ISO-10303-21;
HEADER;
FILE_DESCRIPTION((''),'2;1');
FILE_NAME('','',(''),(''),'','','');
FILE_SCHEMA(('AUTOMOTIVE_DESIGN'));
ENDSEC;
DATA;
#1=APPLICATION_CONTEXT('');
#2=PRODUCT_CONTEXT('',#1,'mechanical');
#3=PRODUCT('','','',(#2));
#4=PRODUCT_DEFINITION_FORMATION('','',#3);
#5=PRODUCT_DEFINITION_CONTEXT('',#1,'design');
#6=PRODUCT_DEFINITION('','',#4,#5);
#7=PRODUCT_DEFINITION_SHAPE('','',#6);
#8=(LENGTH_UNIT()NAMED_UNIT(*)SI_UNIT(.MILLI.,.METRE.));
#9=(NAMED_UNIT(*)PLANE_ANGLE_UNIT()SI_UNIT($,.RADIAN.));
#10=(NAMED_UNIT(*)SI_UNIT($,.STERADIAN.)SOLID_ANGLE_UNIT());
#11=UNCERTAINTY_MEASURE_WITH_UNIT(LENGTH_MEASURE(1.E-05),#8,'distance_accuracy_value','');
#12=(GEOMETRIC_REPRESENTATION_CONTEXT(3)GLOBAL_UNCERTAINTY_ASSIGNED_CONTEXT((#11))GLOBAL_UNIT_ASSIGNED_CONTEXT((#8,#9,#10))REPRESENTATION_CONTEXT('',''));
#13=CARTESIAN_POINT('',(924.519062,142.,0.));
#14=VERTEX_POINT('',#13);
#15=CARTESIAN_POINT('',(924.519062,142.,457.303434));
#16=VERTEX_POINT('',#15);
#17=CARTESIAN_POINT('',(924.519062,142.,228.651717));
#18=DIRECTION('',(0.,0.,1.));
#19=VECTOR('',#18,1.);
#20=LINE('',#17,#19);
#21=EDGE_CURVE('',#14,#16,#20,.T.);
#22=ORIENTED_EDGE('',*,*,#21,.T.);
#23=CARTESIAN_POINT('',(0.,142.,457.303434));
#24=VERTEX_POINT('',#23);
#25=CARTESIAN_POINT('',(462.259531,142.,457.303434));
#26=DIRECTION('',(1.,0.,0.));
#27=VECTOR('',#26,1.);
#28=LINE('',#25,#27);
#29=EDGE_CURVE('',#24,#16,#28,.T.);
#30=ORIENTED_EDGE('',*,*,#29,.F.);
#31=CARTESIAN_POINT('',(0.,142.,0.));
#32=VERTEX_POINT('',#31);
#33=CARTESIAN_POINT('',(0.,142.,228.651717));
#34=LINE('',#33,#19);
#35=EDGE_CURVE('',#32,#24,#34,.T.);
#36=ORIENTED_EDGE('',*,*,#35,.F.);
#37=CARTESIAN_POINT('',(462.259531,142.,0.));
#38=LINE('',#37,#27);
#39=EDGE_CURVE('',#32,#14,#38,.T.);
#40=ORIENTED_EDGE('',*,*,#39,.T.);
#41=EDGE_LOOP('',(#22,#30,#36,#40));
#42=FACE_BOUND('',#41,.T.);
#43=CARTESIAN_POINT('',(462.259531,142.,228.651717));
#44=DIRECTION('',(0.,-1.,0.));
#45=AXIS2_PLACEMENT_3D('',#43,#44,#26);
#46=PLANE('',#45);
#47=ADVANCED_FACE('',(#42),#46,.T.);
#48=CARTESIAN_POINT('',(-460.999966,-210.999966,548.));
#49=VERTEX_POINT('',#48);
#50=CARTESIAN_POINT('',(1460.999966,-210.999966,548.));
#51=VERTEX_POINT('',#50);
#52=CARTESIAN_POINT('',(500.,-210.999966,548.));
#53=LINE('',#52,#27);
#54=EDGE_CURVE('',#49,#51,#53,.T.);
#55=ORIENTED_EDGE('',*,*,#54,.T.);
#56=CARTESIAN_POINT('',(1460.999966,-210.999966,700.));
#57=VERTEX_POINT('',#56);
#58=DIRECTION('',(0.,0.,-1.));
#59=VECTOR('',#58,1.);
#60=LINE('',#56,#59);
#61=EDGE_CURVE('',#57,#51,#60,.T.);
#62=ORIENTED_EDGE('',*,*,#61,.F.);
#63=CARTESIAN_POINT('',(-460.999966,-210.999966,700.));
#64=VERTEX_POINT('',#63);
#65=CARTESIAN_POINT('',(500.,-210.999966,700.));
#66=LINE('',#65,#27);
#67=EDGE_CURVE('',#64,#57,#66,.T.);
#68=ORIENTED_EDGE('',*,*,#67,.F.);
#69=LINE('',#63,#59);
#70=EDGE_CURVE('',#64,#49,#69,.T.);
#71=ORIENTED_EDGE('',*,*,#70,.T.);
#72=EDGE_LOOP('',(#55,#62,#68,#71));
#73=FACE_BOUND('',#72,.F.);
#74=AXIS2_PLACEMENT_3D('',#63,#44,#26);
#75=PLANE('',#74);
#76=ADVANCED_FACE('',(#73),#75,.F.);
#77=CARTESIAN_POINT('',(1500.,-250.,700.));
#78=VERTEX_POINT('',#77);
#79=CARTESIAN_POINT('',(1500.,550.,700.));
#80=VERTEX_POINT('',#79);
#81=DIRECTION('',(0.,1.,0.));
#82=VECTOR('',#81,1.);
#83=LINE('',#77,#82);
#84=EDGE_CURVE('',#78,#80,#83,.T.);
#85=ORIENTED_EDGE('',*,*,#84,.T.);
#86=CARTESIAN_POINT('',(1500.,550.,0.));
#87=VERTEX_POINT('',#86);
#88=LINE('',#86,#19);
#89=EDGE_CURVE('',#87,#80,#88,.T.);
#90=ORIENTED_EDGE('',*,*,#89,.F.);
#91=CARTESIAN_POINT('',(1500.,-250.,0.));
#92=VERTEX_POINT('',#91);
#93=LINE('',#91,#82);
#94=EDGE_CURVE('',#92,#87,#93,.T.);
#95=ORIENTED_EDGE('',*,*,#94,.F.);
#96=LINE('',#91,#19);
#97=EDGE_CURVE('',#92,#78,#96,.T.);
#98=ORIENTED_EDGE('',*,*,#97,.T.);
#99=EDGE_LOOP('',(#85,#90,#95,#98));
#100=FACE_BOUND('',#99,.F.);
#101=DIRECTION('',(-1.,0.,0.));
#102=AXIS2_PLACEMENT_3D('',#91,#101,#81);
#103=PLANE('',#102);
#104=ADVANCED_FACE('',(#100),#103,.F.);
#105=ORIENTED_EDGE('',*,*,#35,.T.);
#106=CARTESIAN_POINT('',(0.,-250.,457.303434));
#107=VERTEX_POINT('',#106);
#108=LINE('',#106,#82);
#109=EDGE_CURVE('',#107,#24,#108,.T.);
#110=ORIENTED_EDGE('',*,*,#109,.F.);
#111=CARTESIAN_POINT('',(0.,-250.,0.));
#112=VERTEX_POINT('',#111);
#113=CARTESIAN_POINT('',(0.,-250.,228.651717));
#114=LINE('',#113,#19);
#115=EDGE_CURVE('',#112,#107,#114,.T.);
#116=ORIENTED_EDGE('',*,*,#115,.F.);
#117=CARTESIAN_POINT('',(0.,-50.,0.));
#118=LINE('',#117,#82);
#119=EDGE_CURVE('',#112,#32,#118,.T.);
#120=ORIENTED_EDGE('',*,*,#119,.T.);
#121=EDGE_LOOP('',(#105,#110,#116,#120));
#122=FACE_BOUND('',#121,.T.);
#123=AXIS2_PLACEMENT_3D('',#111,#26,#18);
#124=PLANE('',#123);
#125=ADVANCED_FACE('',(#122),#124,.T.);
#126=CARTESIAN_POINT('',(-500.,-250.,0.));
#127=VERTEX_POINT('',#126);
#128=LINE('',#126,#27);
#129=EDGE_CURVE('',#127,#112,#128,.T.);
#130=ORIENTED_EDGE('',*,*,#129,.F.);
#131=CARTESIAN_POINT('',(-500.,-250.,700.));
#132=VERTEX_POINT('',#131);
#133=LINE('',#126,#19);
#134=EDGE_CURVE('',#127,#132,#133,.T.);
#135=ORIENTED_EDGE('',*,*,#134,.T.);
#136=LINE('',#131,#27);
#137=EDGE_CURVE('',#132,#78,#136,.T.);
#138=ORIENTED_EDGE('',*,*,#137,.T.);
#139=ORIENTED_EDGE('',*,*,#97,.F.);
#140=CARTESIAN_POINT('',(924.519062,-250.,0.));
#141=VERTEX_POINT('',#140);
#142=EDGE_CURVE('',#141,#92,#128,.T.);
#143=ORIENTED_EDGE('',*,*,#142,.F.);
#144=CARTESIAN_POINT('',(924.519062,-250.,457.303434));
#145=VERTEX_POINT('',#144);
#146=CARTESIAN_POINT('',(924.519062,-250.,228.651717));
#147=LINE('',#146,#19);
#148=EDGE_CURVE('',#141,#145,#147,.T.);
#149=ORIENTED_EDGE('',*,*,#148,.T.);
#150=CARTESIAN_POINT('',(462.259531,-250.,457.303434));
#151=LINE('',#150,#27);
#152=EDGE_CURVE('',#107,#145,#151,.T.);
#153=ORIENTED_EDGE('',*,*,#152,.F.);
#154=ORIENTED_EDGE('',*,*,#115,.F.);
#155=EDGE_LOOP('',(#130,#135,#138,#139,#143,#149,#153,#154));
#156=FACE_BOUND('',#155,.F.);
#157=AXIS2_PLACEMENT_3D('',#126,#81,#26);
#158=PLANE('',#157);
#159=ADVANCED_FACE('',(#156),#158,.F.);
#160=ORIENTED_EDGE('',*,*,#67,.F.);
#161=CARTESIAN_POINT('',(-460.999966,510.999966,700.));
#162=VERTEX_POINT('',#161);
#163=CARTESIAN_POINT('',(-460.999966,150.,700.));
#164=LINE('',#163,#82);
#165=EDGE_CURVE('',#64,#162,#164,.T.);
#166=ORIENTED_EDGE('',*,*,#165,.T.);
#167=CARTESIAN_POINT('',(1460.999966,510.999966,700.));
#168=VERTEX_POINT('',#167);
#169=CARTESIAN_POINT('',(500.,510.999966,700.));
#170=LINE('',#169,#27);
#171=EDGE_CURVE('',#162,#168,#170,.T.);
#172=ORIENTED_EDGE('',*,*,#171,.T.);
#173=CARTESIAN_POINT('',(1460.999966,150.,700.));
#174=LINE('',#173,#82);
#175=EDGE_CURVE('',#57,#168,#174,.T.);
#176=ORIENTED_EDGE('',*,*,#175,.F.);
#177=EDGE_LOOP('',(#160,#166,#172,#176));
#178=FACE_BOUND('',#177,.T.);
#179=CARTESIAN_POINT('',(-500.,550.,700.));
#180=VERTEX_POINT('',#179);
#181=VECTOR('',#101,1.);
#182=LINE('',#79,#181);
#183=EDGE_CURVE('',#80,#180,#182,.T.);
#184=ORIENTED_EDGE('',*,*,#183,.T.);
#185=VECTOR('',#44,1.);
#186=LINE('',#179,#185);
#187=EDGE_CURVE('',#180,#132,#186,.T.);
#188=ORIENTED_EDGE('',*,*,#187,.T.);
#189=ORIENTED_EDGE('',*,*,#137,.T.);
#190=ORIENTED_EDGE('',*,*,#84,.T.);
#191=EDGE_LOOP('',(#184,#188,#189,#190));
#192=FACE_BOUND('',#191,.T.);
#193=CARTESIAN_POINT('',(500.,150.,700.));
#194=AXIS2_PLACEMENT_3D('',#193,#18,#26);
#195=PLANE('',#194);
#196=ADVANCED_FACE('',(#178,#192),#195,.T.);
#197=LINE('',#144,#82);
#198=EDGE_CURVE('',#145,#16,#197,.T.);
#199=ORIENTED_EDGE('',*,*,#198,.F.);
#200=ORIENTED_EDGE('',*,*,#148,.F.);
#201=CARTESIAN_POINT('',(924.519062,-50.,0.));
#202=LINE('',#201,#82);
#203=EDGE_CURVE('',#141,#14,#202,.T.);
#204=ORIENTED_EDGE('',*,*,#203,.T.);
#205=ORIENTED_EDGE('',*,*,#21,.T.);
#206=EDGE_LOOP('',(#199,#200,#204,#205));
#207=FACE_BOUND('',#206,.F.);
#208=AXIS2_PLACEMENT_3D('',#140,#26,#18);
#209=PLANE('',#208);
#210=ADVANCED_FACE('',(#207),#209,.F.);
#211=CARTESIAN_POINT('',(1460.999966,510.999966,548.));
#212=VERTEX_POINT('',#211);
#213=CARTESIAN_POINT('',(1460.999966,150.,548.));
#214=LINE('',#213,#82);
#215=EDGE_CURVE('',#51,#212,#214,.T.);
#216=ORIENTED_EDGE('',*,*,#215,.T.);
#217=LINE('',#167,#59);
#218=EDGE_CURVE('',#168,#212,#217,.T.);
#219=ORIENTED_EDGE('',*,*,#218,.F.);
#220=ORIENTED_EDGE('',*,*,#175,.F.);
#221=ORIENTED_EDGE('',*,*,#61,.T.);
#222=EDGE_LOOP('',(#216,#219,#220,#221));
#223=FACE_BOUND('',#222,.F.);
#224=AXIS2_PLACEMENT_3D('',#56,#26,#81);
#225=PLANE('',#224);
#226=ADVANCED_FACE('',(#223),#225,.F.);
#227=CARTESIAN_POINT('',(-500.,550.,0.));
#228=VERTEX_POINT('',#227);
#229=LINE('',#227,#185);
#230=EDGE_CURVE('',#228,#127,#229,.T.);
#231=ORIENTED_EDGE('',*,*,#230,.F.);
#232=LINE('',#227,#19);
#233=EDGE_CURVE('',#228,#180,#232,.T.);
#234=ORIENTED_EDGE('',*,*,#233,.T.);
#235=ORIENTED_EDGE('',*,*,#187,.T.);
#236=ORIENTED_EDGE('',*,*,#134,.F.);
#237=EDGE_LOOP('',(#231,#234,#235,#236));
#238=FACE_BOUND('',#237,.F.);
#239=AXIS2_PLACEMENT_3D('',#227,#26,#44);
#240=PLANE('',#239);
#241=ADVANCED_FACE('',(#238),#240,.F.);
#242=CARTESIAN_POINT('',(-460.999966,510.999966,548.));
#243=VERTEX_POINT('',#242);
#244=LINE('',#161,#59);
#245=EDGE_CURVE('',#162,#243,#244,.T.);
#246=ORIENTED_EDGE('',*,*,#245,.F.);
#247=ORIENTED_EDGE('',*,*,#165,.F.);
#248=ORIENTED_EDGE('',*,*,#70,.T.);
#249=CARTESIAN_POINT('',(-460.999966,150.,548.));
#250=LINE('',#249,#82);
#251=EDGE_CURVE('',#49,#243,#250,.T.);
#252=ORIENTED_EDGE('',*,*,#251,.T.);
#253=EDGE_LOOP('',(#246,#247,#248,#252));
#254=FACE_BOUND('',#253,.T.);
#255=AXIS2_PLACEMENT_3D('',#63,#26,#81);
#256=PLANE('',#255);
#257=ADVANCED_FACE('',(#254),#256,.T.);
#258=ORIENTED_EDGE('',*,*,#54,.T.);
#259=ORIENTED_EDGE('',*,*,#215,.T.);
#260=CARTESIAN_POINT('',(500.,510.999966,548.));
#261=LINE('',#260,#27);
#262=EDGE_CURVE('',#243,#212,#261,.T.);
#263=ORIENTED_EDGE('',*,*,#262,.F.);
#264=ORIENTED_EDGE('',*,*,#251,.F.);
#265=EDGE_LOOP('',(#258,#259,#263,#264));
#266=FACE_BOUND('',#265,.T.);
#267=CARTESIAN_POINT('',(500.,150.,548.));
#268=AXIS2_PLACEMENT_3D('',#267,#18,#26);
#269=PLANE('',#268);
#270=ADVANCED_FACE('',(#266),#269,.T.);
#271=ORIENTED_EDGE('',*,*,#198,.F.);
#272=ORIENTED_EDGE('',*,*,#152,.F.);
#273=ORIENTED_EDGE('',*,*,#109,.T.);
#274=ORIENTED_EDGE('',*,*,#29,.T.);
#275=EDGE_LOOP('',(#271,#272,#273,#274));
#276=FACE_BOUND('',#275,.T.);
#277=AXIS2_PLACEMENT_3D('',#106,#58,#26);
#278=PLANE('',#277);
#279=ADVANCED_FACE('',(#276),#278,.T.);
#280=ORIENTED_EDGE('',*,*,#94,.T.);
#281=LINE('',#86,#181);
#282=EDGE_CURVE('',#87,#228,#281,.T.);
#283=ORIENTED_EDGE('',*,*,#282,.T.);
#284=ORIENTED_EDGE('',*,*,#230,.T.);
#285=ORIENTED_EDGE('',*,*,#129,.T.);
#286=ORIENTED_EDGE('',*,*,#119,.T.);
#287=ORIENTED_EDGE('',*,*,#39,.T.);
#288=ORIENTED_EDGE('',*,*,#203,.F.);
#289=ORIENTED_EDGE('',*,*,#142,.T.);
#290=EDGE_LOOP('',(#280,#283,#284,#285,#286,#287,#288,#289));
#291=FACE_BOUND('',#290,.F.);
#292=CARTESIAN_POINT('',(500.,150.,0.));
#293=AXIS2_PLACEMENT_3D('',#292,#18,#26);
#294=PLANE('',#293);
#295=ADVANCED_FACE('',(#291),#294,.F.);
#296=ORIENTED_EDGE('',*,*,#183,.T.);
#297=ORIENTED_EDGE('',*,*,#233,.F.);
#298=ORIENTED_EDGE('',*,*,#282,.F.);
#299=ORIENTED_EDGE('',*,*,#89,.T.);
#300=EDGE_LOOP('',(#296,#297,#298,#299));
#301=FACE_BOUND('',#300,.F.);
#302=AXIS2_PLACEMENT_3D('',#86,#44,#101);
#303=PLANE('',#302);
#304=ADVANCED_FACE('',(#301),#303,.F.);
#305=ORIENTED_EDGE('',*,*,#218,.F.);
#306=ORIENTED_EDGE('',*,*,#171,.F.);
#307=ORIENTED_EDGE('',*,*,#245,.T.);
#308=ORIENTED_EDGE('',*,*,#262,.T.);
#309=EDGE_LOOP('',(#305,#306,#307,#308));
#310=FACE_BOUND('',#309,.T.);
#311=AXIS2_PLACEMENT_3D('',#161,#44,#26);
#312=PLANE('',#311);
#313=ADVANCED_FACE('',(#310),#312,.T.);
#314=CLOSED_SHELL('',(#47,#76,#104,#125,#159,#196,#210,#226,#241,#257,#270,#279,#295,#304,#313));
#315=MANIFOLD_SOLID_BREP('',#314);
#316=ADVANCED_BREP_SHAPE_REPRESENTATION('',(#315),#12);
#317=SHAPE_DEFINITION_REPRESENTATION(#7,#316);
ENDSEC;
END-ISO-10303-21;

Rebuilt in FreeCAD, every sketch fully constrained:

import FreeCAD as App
import Part
import Sketcher
Q = App.Units.Quantity

doc = App.newDocument("Part")
body = doc.addObject("PartDesign::Body", "Body")

sketch1 = doc.addObject("Sketcher::SketchObject", "Sketch")
body.addObject(sketch1)
sketch1.AttachmentSupport = (doc.XY_Plane, [""])
sketch1.MapMode = "FlatFace"
sketch1.addGeometry(Part.LineSegment(App.Vector(-500, -250, 0), App.Vector(1500, -250, 0)), False)
sketch1.addGeometry(Part.LineSegment(App.Vector(1500, -250, 0), App.Vector(1500, 550, 0)), False)
sketch1.addGeometry(Part.LineSegment(App.Vector(1500, 550, 0), App.Vector(-500, 550, 0)), False)
sketch1.addGeometry(Part.LineSegment(App.Vector(-500, 550, 0), App.Vector(-500, -250, 0)), False)
sketch1.addConstraint(Sketcher.Constraint("Coincident", 0, 2, 1, 1))
sketch1.addConstraint(Sketcher.Constraint("Coincident", 1, 2, 2, 1))
sketch1.addConstraint(Sketcher.Constraint("Coincident", 2, 2, 3, 1))
sketch1.addConstraint(Sketcher.Constraint("Coincident", 3, 2, 0, 1))
sketch1.addConstraint(Sketcher.Constraint("Horizontal", 0))
sketch1.addConstraint(Sketcher.Constraint("Vertical", 1))
sketch1.addConstraint(Sketcher.Constraint("Horizontal", 2))
sketch1.addConstraint(Sketcher.Constraint("Vertical", 3))
sketch1.addConstraint(Sketcher.Constraint("DistanceX", 0, 1, 0, 2, Q("2000 mm")))
sketch1.addConstraint(Sketcher.Constraint("DistanceY", 1, 1, 1, 2, Q("800 mm")))
sketch1.addConstraint(Sketcher.Constraint("DistanceX", -1, 1, 0, 2, Q("1500 mm")))
sketch1.addConstraint(Sketcher.Constraint("DistanceY", 0, 2, -1, 1, Q("250 mm")))
pad1 = doc.addObject("PartDesign::Pad", "Pad")
body.addObject(pad1)
pad1.Profile = sketch1
pad1.Length = 700

sketch2 = doc.addObject("Sketcher::SketchObject", "Sketch001")
body.addObject(sketch2)
sketch2.AttachmentSupport = (doc.XZ_Plane, [""])
sketch2.MapMode = "FlatFace"
sketch2.AttachmentOffset = App.Placement(App.Vector(0, 0, 250), App.Rotation())
sketch2.addGeometry(Part.LineSegment(App.Vector(0, 457, 0), App.Vector(0, 0, 0)), False)
sketch2.addGeometry(Part.LineSegment(App.Vector(0, 0, 0), App.Vector(925, 0, 0)), False)
sketch2.addGeometry(Part.LineSegment(App.Vector(925, 0, 0), App.Vector(925, 457, 0)), False)
sketch2.addGeometry(Part.LineSegment(App.Vector(925, 457, 0), App.Vector(0, 457, 0)), False)
sketch2.addConstraint(Sketcher.Constraint("Coincident", 0, 2, 1, 1))
sketch2.addConstraint(Sketcher.Constraint("Coincident", 1, 2, 2, 1))
sketch2.addConstraint(Sketcher.Constraint("Coincident", 2, 2, 3, 1))
sketch2.addConstraint(Sketcher.Constraint("Coincident", 3, 2, 0, 1))
sketch2.addConstraint(Sketcher.Constraint("Vertical", 0))
sketch2.addConstraint(Sketcher.Constraint("Horizontal", 1))
sketch2.addConstraint(Sketcher.Constraint("Vertical", 2))
sketch2.addConstraint(Sketcher.Constraint("Horizontal", 3))
sketch2.addConstraint(Sketcher.Constraint("Coincident", 0, 2, -1, 1))
sketch2.addConstraint(Sketcher.Constraint("DistanceX", 1, 1, 1, 2, Q("924.519062 mm")))
sketch2.addConstraint(Sketcher.Constraint("DistanceY", 0, 2, 0, 1, Q("457.303435 mm")))
pocket1 = doc.addObject("PartDesign::Pocket", "Pocket")
body.addObject(pocket1)
pocket1.Profile = sketch2
pocket1.Length = 392

sketch3 = doc.addObject("Sketcher::SketchObject", "Sketch002")
body.addObject(sketch3)
sketch3.AttachmentSupport = (doc.XY_Plane, [""])
sketch3.MapMode = "FlatFace"
sketch3.AttachmentOffset = App.Placement(App.Vector(0, 0, 700), App.Rotation())
sketch3.addGeometry(Part.LineSegment(App.Vector(-460.999966, 510.999966, 0), App.Vector(-460.999966, -210.999966, 0)), False)
sketch3.addGeometry(Part.LineSegment(App.Vector(-460.999966, -210.999966, 0), App.Vector(1460.999966, -210.999966, 0)), False)
sketch3.addGeometry(Part.LineSegment(App.Vector(1460.999966, -210.999966, 0), App.Vector(1460.999966, 510.999966, 0)), False)
sketch3.addGeometry(Part.LineSegment(App.Vector(1460.999966, 510.999966, 0), App.Vector(-460.999966, 510.999966, 0)), False)
sketch3.addConstraint(Sketcher.Constraint("Coincident", 0, 2, 1, 1))
sketch3.addConstraint(Sketcher.Constraint("Coincident", 1, 2, 2, 1))
sketch3.addConstraint(Sketcher.Constraint("Coincident", 2, 2, 3, 1))
sketch3.addConstraint(Sketcher.Constraint("Coincident", 3, 2, 0, 1))
sketch3.addConstraint(Sketcher.Constraint("Vertical", 0))
sketch3.addConstraint(Sketcher.Constraint("Horizontal", 1))
sketch3.addConstraint(Sketcher.Constraint("Vertical", 2))
sketch3.addConstraint(Sketcher.Constraint("Horizontal", 3))
sketch3.addConstraint(Sketcher.Constraint("DistanceY", 0, 2, 0, 1, Q("721.999932 mm")))
sketch3.addConstraint(Sketcher.Constraint("DistanceX", 1, 1, 1, 2, Q("1921.999932 mm")))
sketch3.addConstraint(Sketcher.Constraint("DistanceX", 0, 2, -1, 1, Q("460.999966 mm")))
sketch3.addConstraint(Sketcher.Constraint("DistanceY", 0, 2, -1, 1, Q("210.999966 mm")))
pocket2 = doc.addObject("PartDesign::Pocket", "Pocket001")
body.addObject(pocket2)
pocket2.Profile = sketch3
pocket2.Length = 152

doc.recompute()
